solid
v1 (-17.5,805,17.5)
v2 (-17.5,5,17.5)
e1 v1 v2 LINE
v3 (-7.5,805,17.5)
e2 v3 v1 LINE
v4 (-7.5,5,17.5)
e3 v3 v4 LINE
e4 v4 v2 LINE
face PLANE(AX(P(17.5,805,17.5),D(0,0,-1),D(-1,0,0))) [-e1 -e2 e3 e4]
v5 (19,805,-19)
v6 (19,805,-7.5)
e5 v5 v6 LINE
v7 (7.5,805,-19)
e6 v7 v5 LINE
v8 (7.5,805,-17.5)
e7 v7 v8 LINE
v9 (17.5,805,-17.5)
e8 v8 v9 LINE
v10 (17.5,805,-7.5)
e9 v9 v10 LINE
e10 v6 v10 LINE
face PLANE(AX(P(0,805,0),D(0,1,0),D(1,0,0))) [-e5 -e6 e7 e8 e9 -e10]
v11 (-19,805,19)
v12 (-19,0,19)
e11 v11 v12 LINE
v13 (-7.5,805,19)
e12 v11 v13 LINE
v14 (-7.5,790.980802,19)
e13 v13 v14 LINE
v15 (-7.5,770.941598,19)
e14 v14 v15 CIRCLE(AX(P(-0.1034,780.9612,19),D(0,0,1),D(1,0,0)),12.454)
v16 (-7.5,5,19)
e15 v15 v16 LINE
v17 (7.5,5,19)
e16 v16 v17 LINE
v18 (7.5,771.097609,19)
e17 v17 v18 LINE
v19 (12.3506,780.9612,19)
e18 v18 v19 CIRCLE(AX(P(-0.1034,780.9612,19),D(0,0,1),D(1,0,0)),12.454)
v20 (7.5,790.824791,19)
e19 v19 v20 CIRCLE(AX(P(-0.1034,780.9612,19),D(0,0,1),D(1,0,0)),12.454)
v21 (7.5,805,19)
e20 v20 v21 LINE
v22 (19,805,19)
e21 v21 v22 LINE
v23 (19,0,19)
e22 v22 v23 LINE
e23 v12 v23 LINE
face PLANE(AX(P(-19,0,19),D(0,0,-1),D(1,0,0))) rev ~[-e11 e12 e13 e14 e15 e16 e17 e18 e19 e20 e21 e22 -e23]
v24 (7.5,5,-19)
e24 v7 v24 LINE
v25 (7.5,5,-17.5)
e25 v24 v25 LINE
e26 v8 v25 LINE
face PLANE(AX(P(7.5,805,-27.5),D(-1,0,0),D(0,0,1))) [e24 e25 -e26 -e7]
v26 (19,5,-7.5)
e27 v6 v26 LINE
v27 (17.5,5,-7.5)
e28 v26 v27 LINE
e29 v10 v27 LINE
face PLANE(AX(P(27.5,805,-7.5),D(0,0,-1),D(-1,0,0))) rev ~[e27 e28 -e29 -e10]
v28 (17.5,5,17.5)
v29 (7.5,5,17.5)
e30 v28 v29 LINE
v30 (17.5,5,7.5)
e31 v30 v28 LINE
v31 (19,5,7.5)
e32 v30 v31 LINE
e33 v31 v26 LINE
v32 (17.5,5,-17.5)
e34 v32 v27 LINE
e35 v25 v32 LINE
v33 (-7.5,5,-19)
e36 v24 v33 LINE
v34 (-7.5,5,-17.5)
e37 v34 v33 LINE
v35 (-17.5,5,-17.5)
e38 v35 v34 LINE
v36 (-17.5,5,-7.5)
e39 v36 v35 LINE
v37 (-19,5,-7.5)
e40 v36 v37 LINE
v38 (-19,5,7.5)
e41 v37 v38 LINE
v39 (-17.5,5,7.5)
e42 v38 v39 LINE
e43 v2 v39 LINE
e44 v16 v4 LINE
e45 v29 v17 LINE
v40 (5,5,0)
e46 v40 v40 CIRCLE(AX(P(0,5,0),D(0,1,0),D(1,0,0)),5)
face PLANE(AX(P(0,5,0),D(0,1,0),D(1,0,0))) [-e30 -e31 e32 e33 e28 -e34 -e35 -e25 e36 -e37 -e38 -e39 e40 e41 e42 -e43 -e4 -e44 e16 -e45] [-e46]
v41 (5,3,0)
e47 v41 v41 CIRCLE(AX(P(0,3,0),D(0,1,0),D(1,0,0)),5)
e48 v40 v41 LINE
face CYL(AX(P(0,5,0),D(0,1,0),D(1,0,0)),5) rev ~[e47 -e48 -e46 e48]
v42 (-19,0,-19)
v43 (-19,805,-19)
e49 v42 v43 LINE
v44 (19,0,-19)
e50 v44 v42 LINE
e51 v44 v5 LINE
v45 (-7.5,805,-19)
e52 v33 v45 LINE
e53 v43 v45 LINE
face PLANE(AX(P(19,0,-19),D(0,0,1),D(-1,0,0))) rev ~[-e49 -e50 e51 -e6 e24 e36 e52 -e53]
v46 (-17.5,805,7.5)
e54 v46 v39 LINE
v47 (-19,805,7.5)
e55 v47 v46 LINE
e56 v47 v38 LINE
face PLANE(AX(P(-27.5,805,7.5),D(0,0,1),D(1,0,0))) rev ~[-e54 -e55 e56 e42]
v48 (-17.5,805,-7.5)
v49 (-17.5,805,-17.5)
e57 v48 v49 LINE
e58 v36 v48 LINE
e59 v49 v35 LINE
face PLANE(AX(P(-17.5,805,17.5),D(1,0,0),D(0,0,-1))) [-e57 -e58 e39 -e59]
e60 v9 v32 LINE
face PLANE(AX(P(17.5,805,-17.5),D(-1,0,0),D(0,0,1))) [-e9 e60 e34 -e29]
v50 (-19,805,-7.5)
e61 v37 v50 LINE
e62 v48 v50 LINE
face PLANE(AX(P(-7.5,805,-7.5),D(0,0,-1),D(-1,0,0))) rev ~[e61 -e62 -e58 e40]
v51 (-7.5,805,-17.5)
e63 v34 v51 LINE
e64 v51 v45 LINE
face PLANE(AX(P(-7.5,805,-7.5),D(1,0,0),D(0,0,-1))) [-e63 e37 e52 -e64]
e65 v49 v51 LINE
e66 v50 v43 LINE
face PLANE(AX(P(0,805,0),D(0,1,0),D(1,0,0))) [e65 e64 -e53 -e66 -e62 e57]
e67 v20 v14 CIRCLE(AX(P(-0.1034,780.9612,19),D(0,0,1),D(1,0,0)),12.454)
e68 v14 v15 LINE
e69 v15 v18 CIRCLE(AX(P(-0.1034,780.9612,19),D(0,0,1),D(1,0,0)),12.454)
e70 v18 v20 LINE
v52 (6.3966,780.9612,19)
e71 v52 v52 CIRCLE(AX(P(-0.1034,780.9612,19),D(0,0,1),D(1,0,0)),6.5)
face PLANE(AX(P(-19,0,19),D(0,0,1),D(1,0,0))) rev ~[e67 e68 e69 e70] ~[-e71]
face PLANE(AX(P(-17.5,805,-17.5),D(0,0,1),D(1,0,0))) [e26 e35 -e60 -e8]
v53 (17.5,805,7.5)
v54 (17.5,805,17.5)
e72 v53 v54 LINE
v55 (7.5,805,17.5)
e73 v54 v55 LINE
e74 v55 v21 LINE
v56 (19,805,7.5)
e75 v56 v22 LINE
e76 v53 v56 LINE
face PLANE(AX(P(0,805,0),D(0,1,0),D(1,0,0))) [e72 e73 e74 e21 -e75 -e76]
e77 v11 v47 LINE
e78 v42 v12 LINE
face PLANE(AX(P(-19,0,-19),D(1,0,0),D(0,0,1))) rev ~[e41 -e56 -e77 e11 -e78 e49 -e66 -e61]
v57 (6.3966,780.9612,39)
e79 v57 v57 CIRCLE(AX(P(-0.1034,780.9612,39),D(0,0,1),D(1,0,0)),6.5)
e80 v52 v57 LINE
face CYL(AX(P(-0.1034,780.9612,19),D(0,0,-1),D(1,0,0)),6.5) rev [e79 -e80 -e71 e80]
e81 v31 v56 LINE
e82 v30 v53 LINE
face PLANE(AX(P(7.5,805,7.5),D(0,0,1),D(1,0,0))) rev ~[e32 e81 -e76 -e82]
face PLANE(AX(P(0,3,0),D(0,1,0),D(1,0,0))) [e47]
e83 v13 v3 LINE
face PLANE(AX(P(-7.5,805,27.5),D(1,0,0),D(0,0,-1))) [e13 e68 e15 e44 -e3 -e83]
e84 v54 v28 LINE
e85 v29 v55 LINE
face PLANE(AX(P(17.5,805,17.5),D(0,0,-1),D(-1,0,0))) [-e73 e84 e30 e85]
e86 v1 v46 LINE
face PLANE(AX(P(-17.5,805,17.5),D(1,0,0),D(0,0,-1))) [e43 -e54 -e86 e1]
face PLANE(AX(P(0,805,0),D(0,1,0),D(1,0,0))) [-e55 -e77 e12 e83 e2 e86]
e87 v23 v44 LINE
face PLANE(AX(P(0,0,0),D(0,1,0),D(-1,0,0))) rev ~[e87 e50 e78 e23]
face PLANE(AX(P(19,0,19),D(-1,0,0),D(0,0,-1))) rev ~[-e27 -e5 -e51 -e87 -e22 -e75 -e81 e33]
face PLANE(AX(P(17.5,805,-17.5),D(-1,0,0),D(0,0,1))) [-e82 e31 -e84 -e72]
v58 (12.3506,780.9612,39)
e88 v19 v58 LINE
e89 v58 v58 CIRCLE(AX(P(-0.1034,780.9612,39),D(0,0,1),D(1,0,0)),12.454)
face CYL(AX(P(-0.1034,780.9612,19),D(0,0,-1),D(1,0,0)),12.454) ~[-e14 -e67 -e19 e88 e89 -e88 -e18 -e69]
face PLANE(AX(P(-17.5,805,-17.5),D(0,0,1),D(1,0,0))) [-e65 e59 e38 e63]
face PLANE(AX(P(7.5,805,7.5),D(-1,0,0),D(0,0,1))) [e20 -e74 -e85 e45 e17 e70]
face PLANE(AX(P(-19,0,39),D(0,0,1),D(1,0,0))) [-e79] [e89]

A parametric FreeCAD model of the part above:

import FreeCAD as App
import Part
import Sketcher

doc = App.newDocument("Part")
body = doc.addObject("PartDesign::Body", "Body")

sketch1 = body.newObject("Sketcher::SketchObject", "Sketch")
sketch1.AttachmentSupport = (doc.getObject("XZ_Plane"), [""])
sketch1.MapMode = "FlatFace"
sketch1.addGeometry(Part.LineSegment(App.Vector(19, 19, 0), App.Vector(19, -19, 0)), False)
sketch1.addGeometry(Part.LineSegment(App.Vector(19, -19, 0), App.Vector(-19, -19, 0)), False)
sketch1.addGeometry(Part.LineSegment(App.Vector(-19, -19, 0), App.Vector(-19, 19, 0)), False)
sketch1.addGeometry(Part.LineSegment(App.Vector(-19, 19, 0), App.Vector(19, 19, 0)), False)
sketch1.addConstraint(Sketcher.Constraint("Coincident", 0, 2, 1, 1))
sketch1.addConstraint(Sketcher.Constraint("Coincident", 1, 2, 2, 1))
sketch1.addConstraint(Sketcher.Constraint("Coincident", 2, 2, 3, 1))
sketch1.addConstraint(Sketcher.Constraint("Coincident", 3, 2, 0, 1))
sketch1.addConstraint(Sketcher.Constraint("Vertical", 0))
sketch1.addConstraint(Sketcher.Constraint("Horizontal", 1))
sketch1.addConstraint(Sketcher.Constraint("Vertical", 2))
sketch1.addConstraint(Sketcher.Constraint("Horizontal", 3))
sketch1.addConstraint(Sketcher.Constraint("Symmetric", 0, 2, 2, 2, -1, 1))
sketch1.addConstraint(Sketcher.Constraint("Equal", 3, 0))
sketch1.addConstraint(Sketcher.Constraint("DistanceX", 1, 2, 1, 1, 38.0))
pad1 = body.newObject("PartDesign::Pad", "Pad")
pad1.Profile = sketch1
pad1.Length = 5
pad1.Reversed = True

sketch2 = body.newObject("Sketcher::SketchObject", "Sketch001")
sketch2.AttachmentSupport = (doc.getObject("XZ_Plane"), [""])
sketch2.MapMode = "FlatFace"
sketch2.AttachmentOffset = App.Placement(App.Vector(0, 0, -5), App.Rotation())
sketch2.addGeometry(Part.LineSegment(App.Vector(-19, -19, 0), App.Vector(-19, 19, 0)), False)
sketch2.addGeometry(Part.LineSegment(App.Vector(-19, 19, 0), App.Vector(19, 19, 0)), False)
sketch2.addGeometry(Part.LineSegment(App.Vector(19, 19, 0), App.Vector(19, -19, 0)), False)
sketch2.addGeometry(Part.LineSegment(App.Vector(19, -19, 0), App.Vector(-19, -19, 0)), False)
sketch2.addConstraint(Sketcher.Constraint("Coincident", 0, 2, 1, 1))
sketch2.addConstraint(Sketcher.Constraint("Coincident", 1, 2, 2, 1))
sketch2.addConstraint(Sketcher.Constraint("Coincident", 2, 2, 3, 1))
sketch2.addConstraint(Sketcher.Constraint("Coincident", 3, 2, 0, 1))
sketch2.addConstraint(Sketcher.Constraint("Vertical", 0))
sketch2.addConstraint(Sketcher.Constraint("Horizontal", 1))
sketch2.addConstraint(Sketcher.Constraint("Vertical", 2))
sketch2.addConstraint(Sketcher.Constraint("Horizontal", 3))
sketch2.addConstraint(Sketcher.Constraint("Symmetric", 0, 2, 2, 2, -1, 1))
sketch2.addConstraint(Sketcher.Constraint("Equal", 3, 0))
sketch2.addConstraint(Sketcher.Constraint("DistanceX", 1, 1, 1, 2, 38.0))
pad2 = body.newObject("PartDesign::Pad", "Pad001")
pad2.Profile = sketch2
pad2.Length = 800
pad2.Reversed = True

sketch3 = body.newObject("Sketcher::SketchObject", "Sketch002")
sketch3.AttachmentSupport = (doc.getObject("XZ_Plane"), [""])
sketch3.MapMode = "FlatFace"
sketch3.AttachmentOffset = App.Placement(App.Vector(0, 0, -805), App.Rotation())
sketch3.addGeometry(Part.LineSegment(App.Vector(17.5, -17.5, 0), App.Vector(-17.5, -17.5, 0)), False)
sketch3.addGeometry(Part.LineSegment(App.Vector(-17.5, -17.5, 0), App.Vector(-17.5, 17.5, 0)), False)
sketch3.addGeometry(Part.LineSegment(App.Vector(-17.5, 17.5, 0), App.Vector(17.5, 17.5, 0)), False)
sketch3.addGeometry(Part.LineSegment(App.Vector(17.5, 17.5, 0), App.Vector(17.5, -17.5, 0)), False)
sketch3.addConstraint(Sketcher.Constraint("Coincident", 0, 2, 1, 1))
sketch3.addConstraint(Sketcher.Constraint("Coincident", 1, 2, 2, 1))
sketch3.addConstraint(Sketcher.Constraint("Coincident", 2, 2, 3, 1))
sketch3.addConstraint(Sketcher.Constraint("Coincident", 3, 2, 0, 1))
sketch3.addConstraint(Sketcher.Constraint("Horizontal", 0))
sketch3.addConstraint(Sketcher.Constraint("Vertical", 1))
sketch3.addConstraint(Sketcher.Constraint("Horizontal", 2))
sketch3.addConstraint(Sketcher.Constraint("Vertical", 3))
sketch3.addConstraint(Sketcher.Constraint("Symmetric", 0, 2, 2, 2, -1, 1))
sketch3.addConstraint(Sketcher.Constraint("Equal", 2, 1))
sketch3.addConstraint(Sketcher.Constraint("DistanceX", 0, 2, 0, 1, 35.0))
pocket1 = body.newObject("PartDesign::Pocket", "Pocket")
pocket1.Profile = sketch3
pocket1.Length = 800
pocket1.Reversed = True

sketch4 = body.newObject("Sketcher::SketchObject", "Sketch003")
sketch4.AttachmentSupport = (doc.getObject("XZ_Plane"), [""])
sketch4.MapMode = "FlatFace"
sketch4.AttachmentOffset = App.Placement(App.Vector(0, 0, -805), App.Rotation())
sketch4.addGeometry(Part.LineSegment(App.Vector(7.5, -27.5, 0), App.Vector(-7.5, -27.5, 0)), False)
sketch4.addGeometry(Part.LineSegment(App.Vector(-7.5, -27.5, 0), App.Vector(-7.5, -7.5, 0)), False)
sketch4.addGeometry(Part.LineSegment(App.Vector(-7.5, -7.5, 0), App.Vector(-27.5, -7.5, 0)), False)
sketch4.addGeometry(Part.LineSegment(App.Vector(-27.5, -7.5, 0), App.Vector(-27.5, 7.5, 0)), False)
sketch4.addGeometry(Part.LineSegment(App.Vector(-27.5, 7.5, 0), App.Vector(-7.5, 7.5, 0)), False)
sketch4.addGeometry(Part.LineSegment(App.Vector(-7.5, 7.5, 0), App.Vector(-7.5, 27.5, 0)), False)
sketch4.addGeometry(Part.LineSegment(App.Vector(-7.5, 27.5, 0), App.Vector(7.5, 27.5, 0)), False)
sketch4.addGeometry(Part.LineSegment(App.Vector(7.5, 27.5, 0), App.Vector(7.5, 7.5, 0)), False)
sketch4.addGeometry(Part.LineSegment(App.Vector(7.5, 7.5, 0), App.Vector(27.5, 7.5, 0)), False)
sketch4.addGeometry(Part.LineSegment(App.Vector(27.5, 7.5, 0), App.Vector(27.5, -7.5, 0)), False)
sketch4.addGeometry(Part.LineSegment(App.Vector(27.5, -7.5, 0), App.Vector(7.5, -7.5, 0)), False)
sketch4.addGeometry(Part.LineSegment(App.Vector(7.5, -7.5, 0), App.Vector(7.5, -27.5, 0)), False)
sketch4.addConstraint(Sketcher.Constraint("Coincident", 0, 2, 1, 1))
sketch4.addConstraint(Sketcher.Constraint("Coincident", 1, 2, 2, 1))
sketch4.addConstraint(Sketcher.Constraint("Coincident", 2, 2, 3, 1))
sketch4.addConstraint(Sketcher.Constraint("Coincident", 3, 2, 4, 1))
sketch4.addConstraint(Sketcher.Constraint("Coincident", 4, 2, 5, 1))
sketch4.addConstraint(Sketcher.Constraint("Coincident", 5, 2, 6, 1))
sketch4.addConstraint(Sketcher.Constraint("Coincident", 6, 2, 7, 1))
sketch4.addConstraint(Sketcher.Constraint("Coincident", 7, 2, 8, 1))
sketch4.addConstraint(Sketcher.Constraint("Coincident", 8, 2, 9, 1))
sketch4.addConstraint(Sketcher.Constraint("Coincident", 9, 2, 10, 1))
sketch4.addConstraint(Sketcher.Constraint("Coincident", 10, 2, 11, 1))
sketch4.addConstraint(Sketcher.Constraint("Coincident", 11, 2, 0, 1))
sketch4.addConstraint(Sketcher.Constraint("Horizontal", 0))
sketch4.addConstraint(Sketcher.Constraint("Vertical", 1))
sketch4.addConstraint(Sketcher.Constraint("Horizontal", 2))
sketch4.addConstraint(Sketcher.Constraint("Vertical", 3))
sketch4.addConstraint(Sketcher.Constraint("Horizontal", 4))
sketch4.addConstraint(Sketcher.Constraint("Vertical", 5))
sketch4.addConstraint(Sketcher.Constraint("Horizontal", 6))
sketch4.addConstraint(Sketcher.Constraint("Vertical", 7))
sketch4.addConstraint(Sketcher.Constraint("Horizontal", 8))
sketch4.addConstraint(Sketcher.Constraint("Vertical", 9))
sketch4.addConstraint(Sketcher.Constraint("Horizontal", 10))
sketch4.addConstraint(Sketcher.Constraint("Vertical", 11))
sketch4.addConstraint(Sketcher.Constraint("Symmetric", 0, 2, 6, 2, -1, 1))
sketch4.addConstraint(Sketcher.Constraint("Symmetric", 2, 2, 8, 2, -1, 1))
sketch4.addConstraint(Sketcher.Constraint("Symmetric", 4, 2, 10, 2, -1, 1))
sketch4.addConstraint(Sketcher.Constraint("Symmetric", 4, 2, 7, 2, -2))
sketch4.addConstraint(Sketcher.Constraint("Equal", 10, 1))
sketch4.addConstraint(Sketcher.Constraint("Equal", 6, 3))
sketch4.addConstraint(Sketcher.Constraint("DistanceX", 0, 2, 0, 1, 15.0))
sketch4.addConstraint(Sketcher.Constraint("DistanceY", 0, 2, 5, 2, 55.0))
pocket2 = body.newObject("PartDesign::Pocket", "Pocket001")
pocket2.Profile = sketch4
pocket2.Length = 800
pocket2.Reversed = True

sketch5 = body.newObject("Sketcher::SketchObject", "Sketch004")
sketch5.AttachmentSupport = (doc.getObject("XZ_Plane"), [""])
sketch5.MapMode = "FlatFace"
sketch5.AttachmentOffset = App.Placement(App.Vector(0, 0, -5), App.Rotation())
sketch5.addGeometry(Part.Circle(App.Vector(0, 0, 0), App.Vector(0, 0, 1), 5), False)
sketch5.addConstraint(Sketcher.Constraint("Coincident", 0, 3, -1, 1))
sketch5.addConstraint(Sketcher.Constraint("Diameter", 0, 10.0))
pocket3 = body.newObject("PartDesign::Pocket", "Pocket002")
pocket3.Profile = sketch5
pocket3.Length = 2
pocket3.Reversed = True

sketch6 = body.newObject("Sketcher::SketchObject", "Sketch005")
sketch6.AttachmentSupport = (doc.getObject("XY_Plane"), [""])
sketch6.MapMode = "FlatFace"
sketch6.AttachmentOffset = App.Placement(App.Vector(0, 0, 19), App.Rotation())
sketch6.addGeometry(Part.Circle(App.Vector(-0.1034, 780.9612, 0), App.Vector(0, 0, 1), 12.454), False)
sketch6.addGeometry(Part.Circle(App.Vector(-0.1034, 780.9612, 0), App.Vector(0, 0, 1), 6.5), False)
sketch6.addConstraint(Sketcher.Constraint("Coincident", 1, 3, 0, 3))
sketch6.addConstraint(Sketcher.Constraint("Diameter", 1, 13.0))
sketch6.addConstraint(Sketcher.Constraint("Diameter", 0, 24.908))
sketch6.addConstraint(Sketcher.Constraint("DistanceX", 0, 3, -1, 1, 0.1034))
sketch6.addConstraint(Sketcher.Constraint("DistanceY", -1, 1, 0, 3, 780.9612))
pad3 = body.newObject("PartDesign::Pad", "Pad002")
pad3.Profile = sketch6
pad3.Length = 20

doc.recompute()
